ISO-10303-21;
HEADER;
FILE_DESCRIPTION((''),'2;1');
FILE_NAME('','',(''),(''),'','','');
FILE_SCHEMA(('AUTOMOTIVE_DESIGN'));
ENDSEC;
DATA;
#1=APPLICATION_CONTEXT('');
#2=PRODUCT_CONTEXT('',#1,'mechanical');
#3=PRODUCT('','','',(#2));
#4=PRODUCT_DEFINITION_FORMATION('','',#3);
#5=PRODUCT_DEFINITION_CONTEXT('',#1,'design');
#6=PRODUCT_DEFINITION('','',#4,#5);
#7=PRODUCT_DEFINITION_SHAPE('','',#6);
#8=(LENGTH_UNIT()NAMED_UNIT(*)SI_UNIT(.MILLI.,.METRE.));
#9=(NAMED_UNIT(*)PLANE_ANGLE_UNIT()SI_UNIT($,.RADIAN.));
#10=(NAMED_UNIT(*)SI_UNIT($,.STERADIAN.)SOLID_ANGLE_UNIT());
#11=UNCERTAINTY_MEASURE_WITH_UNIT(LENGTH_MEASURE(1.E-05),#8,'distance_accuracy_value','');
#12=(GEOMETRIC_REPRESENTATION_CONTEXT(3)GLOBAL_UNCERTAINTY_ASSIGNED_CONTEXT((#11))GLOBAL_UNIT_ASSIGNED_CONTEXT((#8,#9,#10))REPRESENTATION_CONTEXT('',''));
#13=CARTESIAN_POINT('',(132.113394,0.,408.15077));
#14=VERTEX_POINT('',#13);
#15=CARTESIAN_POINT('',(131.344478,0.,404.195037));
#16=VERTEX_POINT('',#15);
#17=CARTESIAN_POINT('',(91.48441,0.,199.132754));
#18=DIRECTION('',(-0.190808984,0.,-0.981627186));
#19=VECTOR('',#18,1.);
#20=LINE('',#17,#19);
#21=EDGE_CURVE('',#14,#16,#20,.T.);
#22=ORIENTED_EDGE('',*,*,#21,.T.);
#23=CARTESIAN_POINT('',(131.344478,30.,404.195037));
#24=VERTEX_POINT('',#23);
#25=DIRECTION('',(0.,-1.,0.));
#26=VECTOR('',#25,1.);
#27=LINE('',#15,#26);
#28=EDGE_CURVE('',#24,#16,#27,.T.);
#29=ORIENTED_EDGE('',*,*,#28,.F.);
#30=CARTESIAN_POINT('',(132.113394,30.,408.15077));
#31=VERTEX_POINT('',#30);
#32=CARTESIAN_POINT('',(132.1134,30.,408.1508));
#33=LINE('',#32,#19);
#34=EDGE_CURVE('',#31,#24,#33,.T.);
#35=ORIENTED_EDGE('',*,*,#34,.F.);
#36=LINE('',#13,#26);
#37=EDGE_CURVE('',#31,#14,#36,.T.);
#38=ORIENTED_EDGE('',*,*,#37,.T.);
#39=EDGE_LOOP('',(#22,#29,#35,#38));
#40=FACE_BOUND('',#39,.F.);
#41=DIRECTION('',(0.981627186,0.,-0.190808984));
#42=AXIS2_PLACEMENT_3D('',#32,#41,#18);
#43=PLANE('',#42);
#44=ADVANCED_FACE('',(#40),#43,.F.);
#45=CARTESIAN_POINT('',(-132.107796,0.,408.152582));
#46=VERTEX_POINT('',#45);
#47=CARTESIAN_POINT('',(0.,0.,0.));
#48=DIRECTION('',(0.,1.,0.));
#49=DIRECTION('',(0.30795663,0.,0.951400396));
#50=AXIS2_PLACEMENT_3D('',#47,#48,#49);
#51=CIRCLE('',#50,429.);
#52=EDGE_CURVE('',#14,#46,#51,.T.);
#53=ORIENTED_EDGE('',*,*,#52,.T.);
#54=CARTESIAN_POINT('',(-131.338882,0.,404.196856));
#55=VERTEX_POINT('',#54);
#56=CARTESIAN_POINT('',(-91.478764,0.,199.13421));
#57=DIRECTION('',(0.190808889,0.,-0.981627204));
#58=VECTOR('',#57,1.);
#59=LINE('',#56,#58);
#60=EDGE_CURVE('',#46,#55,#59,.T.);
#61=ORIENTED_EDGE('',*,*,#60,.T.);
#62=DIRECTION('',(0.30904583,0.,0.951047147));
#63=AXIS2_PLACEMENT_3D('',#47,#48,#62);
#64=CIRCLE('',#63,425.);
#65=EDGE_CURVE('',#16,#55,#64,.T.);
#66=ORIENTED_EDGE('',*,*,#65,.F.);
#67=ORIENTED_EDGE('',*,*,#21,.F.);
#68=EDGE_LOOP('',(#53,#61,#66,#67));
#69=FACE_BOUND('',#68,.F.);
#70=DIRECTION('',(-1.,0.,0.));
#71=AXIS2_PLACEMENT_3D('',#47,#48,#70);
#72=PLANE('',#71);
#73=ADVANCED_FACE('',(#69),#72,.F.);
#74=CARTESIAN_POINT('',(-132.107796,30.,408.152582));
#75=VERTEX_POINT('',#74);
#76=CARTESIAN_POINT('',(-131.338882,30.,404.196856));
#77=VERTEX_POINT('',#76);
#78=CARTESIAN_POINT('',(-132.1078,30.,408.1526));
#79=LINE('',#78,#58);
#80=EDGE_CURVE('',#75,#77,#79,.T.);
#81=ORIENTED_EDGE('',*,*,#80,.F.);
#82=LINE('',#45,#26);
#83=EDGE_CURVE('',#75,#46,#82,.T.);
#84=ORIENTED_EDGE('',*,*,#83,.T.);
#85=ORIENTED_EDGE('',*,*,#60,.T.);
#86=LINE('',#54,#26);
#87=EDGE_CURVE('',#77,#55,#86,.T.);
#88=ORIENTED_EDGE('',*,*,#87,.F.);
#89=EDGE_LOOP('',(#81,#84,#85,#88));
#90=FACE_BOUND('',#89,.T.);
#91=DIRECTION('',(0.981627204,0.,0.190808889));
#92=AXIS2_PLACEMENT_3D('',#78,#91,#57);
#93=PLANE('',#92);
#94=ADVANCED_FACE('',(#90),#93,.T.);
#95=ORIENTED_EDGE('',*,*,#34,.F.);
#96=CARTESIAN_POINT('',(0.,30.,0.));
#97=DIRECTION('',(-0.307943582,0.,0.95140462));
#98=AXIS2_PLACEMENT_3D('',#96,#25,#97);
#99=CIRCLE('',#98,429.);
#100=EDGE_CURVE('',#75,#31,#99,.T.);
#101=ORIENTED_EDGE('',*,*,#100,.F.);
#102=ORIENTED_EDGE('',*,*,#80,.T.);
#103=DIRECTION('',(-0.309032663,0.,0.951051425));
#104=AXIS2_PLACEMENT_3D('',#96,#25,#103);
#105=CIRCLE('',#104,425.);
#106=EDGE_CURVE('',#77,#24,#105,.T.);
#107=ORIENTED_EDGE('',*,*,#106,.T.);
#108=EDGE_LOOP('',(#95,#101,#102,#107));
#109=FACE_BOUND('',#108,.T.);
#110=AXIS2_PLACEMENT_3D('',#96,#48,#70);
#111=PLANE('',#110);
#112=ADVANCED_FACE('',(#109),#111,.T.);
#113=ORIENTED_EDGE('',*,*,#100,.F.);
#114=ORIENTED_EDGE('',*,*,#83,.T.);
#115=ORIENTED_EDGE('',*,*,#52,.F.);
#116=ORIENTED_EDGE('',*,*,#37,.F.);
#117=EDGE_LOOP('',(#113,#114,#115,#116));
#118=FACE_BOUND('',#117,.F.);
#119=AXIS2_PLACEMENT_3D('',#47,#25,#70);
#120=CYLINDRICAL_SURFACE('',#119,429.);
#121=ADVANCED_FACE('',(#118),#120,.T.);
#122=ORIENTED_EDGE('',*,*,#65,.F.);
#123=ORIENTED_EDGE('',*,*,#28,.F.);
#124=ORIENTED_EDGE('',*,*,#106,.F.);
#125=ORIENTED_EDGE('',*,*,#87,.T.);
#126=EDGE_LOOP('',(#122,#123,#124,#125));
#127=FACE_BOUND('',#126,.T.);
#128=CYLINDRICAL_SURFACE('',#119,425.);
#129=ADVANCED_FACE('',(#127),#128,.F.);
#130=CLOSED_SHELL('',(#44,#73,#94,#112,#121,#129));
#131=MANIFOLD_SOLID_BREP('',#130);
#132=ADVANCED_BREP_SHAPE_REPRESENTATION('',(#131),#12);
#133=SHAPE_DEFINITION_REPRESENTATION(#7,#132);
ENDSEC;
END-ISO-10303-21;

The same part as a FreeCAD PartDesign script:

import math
import FreeCAD as App
import Part
import Sketcher

V = App.Vector
Q = App.Units.Quantity

doc = App.newDocument("Part")
body = doc.addObject("PartDesign::Body", "Body")

sketch1 = body.newObject("Sketcher::SketchObject", "Sketch")
sketch1.AttachmentSupport = (doc.getObject("XZ_Plane"), [""])
sketch1.MapMode = "FlatFace"
sketch1.addGeometry(Part.Circle(V(0, 0, 0), V(0, 0, 1), 429), False)
sketch1.addGeometry(Part.Circle(V(0, 0, 0), V(0, 0, 1), 425), False)
sketch1.addConstraint(Sketcher.Constraint("Coincident", 0, 3, -1, 1))
sketch1.addConstraint(Sketcher.Constraint("Coincident", 1, 3, -1, 1))
sketch1.addConstraint(Sketcher.Constraint("Diameter", 0, 858.0))
sketch1.addConstraint(Sketcher.Constraint("Diameter", 1, 850.0))
pad1 = body.newObject("PartDesign::Pad", "Pad")
pad1.Profile = sketch1
pad1.Length = 30
pad1.Reversed = True

sketch2 = body.newObject("Sketcher::SketchObject", "Sketch001")
sketch2.AttachmentSupport = (doc.getObject("XZ_Plane"), [""])
sketch2.MapMode = "FlatFace"
sketch2.AttachmentOffset = App.Placement(V(0, 0, -30), App.Rotation())
sketch2.addGeometry(Part.LineSegment(V(-77.7244, 128.3741, 0), V(-132.1078, 408.1526, 0)), False)
sketch2.addGeometry(Part.ArcOfCircle(Part.Circle(V(0, 0, 0), V(0, 0, 1), 429.000018), math.radians(72.06387), math.radians(107.935344)), False)
sketch2.addGeometry(Part.LineSegment(V(132.1134, 408.1508, 0), V(77.7297, 128.3709, 0)), False)
sketch2.addGeometry(Part.ArcOfCircle(Part.Circle(V(0, 0, 0), V(0, 0, 1), 150.069957), math.radians(58.804729), math.radians(121.192907)), False)
sketch2.addConstraint(Sketcher.Constraint("Coincident", 0, 2, 1, 2))
sketch2.addConstraint(Sketcher.Constraint("Coincident", 1, 1, 2, 1))
sketch2.addConstraint(Sketcher.Constraint("Coincident", 2, 2, 3, 1))
sketch2.addConstraint(Sketcher.Constraint("Coincident", 3, 2, 0, 1))
sketch2.addConstraint(Sketcher.Constraint("Coincident", 1, 3, -1, 1))
sketch2.addConstraint(Sketcher.Constraint("Coincident", 3, 3, -1, 1))
sketch2.addConstraint(Sketcher.Constraint("Radius", 1, 429.0))
sketch2.addConstraint(Sketcher.Constraint("Radius", 3, 150.07))
sketch2.addConstraint(Sketcher.Constraint("Angle", 0, Q("101 deg")))
sketch2.addConstraint(Sketcher.Constraint("Angle", 2, Q("-101 deg")))
sketch2.addConstraint(Sketcher.Constraint("Distance", 0, 285.015))
sketch2.addConstraint(Sketcher.Constraint("DistanceY", -1, 1, 2, 2, 128.371))
pocket1 = body.newObject("PartDesign::Pocket", "Pocket")
pocket1.Profile = sketch2
pocket1.Type = "ThroughAll"
pocket1.Reversed = True

doc.recompute()
